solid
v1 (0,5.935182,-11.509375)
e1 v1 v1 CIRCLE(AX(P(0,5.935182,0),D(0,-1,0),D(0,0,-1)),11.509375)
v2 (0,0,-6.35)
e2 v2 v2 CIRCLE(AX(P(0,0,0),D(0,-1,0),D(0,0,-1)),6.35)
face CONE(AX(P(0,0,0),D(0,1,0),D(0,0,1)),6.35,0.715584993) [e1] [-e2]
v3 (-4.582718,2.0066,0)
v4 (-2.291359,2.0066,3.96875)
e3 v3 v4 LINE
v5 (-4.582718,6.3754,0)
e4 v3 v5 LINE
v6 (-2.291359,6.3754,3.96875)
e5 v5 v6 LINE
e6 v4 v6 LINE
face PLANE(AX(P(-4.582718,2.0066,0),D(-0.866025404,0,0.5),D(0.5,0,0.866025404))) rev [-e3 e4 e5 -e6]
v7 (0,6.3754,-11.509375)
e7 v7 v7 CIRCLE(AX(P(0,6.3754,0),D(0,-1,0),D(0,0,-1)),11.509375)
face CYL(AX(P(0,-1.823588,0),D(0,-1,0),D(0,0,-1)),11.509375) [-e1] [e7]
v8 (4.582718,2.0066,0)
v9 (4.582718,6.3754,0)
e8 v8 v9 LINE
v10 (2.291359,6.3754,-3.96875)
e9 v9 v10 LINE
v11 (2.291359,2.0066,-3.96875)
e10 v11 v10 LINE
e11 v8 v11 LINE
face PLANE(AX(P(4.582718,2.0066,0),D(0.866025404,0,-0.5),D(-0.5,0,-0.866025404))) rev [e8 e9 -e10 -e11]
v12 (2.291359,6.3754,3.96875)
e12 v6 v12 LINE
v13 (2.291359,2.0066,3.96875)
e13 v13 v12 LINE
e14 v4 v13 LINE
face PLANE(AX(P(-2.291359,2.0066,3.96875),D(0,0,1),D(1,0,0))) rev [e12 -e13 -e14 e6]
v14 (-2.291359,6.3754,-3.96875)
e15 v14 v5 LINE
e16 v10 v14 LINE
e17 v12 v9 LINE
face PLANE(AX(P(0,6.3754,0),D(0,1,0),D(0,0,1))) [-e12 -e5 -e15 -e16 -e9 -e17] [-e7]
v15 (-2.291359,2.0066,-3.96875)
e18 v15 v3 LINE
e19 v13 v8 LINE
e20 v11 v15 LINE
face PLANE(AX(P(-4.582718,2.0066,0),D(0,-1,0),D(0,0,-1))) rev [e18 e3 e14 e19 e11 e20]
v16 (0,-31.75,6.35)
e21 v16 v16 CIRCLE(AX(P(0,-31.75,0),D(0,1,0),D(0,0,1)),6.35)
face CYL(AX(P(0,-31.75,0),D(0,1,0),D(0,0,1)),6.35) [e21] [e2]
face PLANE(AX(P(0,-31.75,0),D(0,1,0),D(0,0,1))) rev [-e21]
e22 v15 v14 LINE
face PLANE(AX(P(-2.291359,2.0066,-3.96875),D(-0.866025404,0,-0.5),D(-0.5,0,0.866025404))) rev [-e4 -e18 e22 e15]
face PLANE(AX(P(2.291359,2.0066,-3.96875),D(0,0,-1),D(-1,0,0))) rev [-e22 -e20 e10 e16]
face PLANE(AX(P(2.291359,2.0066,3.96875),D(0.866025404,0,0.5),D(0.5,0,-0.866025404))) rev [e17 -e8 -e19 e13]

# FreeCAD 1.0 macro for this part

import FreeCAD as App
import Part
import Sketcher
Q = App.Units.Quantity


def add_polygon(sketch, points):
    """Adds a closed chain of lines whose ends are joined by coincident constraints."""
    first, n = sketch.GeometryCount, len(points)
    for a, b in zip(points, points[1:] + points[:1]):
        sketch.addGeometry(Part.LineSegment(App.Vector(*a, 0), App.Vector(*b, 0)), False)
    for i in range(n):
        sketch.addConstraint(Sketcher.Constraint("Coincident", first + i, 2, first + (i + 1) % n, 1))

doc = App.newDocument("Part")
body = doc.addObject("PartDesign::Body", "Body")

# Sketch on XY plane
sketch1 = doc.addObject("Sketcher::SketchObject", "Sketch")
body.addObject(sketch1)
sketch1.AttachmentSupport = (doc.XY_Plane, [""])
sketch1.MapMode = "FlatFace"
add_polygon(sketch1, [(11.51, 6.38), (0, 6.38), (0, 0), (6.35, 0), (11.51, 5.94)])  # lines 0-4
sketch1.addConstraint([
    Sketcher.Constraint("Horizontal", 0),
    Sketcher.Constraint("Vertical", 1),
    Sketcher.Constraint("Horizontal", 2),
    Sketcher.Constraint("Vertical", 4),
    Sketcher.Constraint("Coincident", 1, 2, -1, 1),
    Sketcher.Constraint("Angle", 3, Q("49 deg")),
    Sketcher.Constraint("DistanceX", 2, 1, 2, 2, Q("0.25 in")),
    Sketcher.Constraint("DistanceX", 0, 2, 0, 1, Q("0.453125 in")),
    Sketcher.Constraint("DistanceY", 1, 2, 1, 1, Q("0.251 in")),
])
revolution = doc.addObject("PartDesign::Revolution", "Revolution")
body.addObject(revolution)
revolution.Profile = sketch1
revolution.ReferenceAxis = (sketch1, ["V_Axis"])
revolution.Angle = 360

# Sketch on XZ plane
sketch2 = doc.addObject("Sketcher::SketchObject", "Sketch001")
body.addObject(sketch2)
sketch2.AttachmentSupport = (doc.XZ_Plane, [""])
sketch2.MapMode = "FlatFace"
sketch2.addGeometry(Part.Circle(App.Vector(0, 0, 0), App.Vector(0, 0, 1), 6), False)
sketch2.addConstraint([
    Sketcher.Constraint("Coincident", 0, 3, -1, 1),
    Sketcher.Constraint("Diameter", 0, Q("0.5 in")),
])
pad1 = doc.addObject("PartDesign::Pad", "Pad")
body.addObject(pad1)
pad1.Profile = sketch2
pad1.Length = Q("1.25 in")

# Sketch on XZ plane
sketch3 = doc.addObject("Sketcher::SketchObject", "Sketch002")
body.addObject(sketch3)
sketch3.AttachmentSupport = (doc.XZ_Plane, [""])
sketch3.MapMode = "FlatFace"
sketch3.AttachmentOffset = App.Placement(App.Vector(0, 0, -0.251 * 25.4), App.Rotation())
add_polygon(sketch3, [(-2.3, 4), (2.3, 4), (4.6, 0), (2.3, -4), (-2.3, -4), (-4.6, 0)])  # lines 0-5
sketch3.addConstraint([
    Sketcher.Constraint("Horizontal", 0),
    Sketcher.Constraint("Horizontal", 3),
    Sketcher.Constraint("Symmetric", 0, 2, 3, 2, -1, 1),
    Sketcher.Constraint("Symmetric", 1, 2, 4, 2, -1, 1),
    Sketcher.Constraint("PointOnObject", 1, 2, -1),
    Sketcher.Constraint("Parallel", 2, 5),
    Sketcher.Constraint("Vertical", 0, 2, 2, 2),
    Sketcher.Constraint("Angle", 1, Q("-60 deg")),
    Sketcher.Constraint("DistanceY", -1, 1, 0, 2, Q("0.15625 in")),
    Sketcher.Constraint("DistanceX", 0, 1, 0, 2, 4.582718),
])
pocket1 = doc.addObject("PartDesign::Pocket", "Pocket")
body.addObject(pocket1)
pocket1.Profile = sketch3
pocket1.Length = Q("0.172 in")
pocket1.Reversed = True

doc.recompute()
